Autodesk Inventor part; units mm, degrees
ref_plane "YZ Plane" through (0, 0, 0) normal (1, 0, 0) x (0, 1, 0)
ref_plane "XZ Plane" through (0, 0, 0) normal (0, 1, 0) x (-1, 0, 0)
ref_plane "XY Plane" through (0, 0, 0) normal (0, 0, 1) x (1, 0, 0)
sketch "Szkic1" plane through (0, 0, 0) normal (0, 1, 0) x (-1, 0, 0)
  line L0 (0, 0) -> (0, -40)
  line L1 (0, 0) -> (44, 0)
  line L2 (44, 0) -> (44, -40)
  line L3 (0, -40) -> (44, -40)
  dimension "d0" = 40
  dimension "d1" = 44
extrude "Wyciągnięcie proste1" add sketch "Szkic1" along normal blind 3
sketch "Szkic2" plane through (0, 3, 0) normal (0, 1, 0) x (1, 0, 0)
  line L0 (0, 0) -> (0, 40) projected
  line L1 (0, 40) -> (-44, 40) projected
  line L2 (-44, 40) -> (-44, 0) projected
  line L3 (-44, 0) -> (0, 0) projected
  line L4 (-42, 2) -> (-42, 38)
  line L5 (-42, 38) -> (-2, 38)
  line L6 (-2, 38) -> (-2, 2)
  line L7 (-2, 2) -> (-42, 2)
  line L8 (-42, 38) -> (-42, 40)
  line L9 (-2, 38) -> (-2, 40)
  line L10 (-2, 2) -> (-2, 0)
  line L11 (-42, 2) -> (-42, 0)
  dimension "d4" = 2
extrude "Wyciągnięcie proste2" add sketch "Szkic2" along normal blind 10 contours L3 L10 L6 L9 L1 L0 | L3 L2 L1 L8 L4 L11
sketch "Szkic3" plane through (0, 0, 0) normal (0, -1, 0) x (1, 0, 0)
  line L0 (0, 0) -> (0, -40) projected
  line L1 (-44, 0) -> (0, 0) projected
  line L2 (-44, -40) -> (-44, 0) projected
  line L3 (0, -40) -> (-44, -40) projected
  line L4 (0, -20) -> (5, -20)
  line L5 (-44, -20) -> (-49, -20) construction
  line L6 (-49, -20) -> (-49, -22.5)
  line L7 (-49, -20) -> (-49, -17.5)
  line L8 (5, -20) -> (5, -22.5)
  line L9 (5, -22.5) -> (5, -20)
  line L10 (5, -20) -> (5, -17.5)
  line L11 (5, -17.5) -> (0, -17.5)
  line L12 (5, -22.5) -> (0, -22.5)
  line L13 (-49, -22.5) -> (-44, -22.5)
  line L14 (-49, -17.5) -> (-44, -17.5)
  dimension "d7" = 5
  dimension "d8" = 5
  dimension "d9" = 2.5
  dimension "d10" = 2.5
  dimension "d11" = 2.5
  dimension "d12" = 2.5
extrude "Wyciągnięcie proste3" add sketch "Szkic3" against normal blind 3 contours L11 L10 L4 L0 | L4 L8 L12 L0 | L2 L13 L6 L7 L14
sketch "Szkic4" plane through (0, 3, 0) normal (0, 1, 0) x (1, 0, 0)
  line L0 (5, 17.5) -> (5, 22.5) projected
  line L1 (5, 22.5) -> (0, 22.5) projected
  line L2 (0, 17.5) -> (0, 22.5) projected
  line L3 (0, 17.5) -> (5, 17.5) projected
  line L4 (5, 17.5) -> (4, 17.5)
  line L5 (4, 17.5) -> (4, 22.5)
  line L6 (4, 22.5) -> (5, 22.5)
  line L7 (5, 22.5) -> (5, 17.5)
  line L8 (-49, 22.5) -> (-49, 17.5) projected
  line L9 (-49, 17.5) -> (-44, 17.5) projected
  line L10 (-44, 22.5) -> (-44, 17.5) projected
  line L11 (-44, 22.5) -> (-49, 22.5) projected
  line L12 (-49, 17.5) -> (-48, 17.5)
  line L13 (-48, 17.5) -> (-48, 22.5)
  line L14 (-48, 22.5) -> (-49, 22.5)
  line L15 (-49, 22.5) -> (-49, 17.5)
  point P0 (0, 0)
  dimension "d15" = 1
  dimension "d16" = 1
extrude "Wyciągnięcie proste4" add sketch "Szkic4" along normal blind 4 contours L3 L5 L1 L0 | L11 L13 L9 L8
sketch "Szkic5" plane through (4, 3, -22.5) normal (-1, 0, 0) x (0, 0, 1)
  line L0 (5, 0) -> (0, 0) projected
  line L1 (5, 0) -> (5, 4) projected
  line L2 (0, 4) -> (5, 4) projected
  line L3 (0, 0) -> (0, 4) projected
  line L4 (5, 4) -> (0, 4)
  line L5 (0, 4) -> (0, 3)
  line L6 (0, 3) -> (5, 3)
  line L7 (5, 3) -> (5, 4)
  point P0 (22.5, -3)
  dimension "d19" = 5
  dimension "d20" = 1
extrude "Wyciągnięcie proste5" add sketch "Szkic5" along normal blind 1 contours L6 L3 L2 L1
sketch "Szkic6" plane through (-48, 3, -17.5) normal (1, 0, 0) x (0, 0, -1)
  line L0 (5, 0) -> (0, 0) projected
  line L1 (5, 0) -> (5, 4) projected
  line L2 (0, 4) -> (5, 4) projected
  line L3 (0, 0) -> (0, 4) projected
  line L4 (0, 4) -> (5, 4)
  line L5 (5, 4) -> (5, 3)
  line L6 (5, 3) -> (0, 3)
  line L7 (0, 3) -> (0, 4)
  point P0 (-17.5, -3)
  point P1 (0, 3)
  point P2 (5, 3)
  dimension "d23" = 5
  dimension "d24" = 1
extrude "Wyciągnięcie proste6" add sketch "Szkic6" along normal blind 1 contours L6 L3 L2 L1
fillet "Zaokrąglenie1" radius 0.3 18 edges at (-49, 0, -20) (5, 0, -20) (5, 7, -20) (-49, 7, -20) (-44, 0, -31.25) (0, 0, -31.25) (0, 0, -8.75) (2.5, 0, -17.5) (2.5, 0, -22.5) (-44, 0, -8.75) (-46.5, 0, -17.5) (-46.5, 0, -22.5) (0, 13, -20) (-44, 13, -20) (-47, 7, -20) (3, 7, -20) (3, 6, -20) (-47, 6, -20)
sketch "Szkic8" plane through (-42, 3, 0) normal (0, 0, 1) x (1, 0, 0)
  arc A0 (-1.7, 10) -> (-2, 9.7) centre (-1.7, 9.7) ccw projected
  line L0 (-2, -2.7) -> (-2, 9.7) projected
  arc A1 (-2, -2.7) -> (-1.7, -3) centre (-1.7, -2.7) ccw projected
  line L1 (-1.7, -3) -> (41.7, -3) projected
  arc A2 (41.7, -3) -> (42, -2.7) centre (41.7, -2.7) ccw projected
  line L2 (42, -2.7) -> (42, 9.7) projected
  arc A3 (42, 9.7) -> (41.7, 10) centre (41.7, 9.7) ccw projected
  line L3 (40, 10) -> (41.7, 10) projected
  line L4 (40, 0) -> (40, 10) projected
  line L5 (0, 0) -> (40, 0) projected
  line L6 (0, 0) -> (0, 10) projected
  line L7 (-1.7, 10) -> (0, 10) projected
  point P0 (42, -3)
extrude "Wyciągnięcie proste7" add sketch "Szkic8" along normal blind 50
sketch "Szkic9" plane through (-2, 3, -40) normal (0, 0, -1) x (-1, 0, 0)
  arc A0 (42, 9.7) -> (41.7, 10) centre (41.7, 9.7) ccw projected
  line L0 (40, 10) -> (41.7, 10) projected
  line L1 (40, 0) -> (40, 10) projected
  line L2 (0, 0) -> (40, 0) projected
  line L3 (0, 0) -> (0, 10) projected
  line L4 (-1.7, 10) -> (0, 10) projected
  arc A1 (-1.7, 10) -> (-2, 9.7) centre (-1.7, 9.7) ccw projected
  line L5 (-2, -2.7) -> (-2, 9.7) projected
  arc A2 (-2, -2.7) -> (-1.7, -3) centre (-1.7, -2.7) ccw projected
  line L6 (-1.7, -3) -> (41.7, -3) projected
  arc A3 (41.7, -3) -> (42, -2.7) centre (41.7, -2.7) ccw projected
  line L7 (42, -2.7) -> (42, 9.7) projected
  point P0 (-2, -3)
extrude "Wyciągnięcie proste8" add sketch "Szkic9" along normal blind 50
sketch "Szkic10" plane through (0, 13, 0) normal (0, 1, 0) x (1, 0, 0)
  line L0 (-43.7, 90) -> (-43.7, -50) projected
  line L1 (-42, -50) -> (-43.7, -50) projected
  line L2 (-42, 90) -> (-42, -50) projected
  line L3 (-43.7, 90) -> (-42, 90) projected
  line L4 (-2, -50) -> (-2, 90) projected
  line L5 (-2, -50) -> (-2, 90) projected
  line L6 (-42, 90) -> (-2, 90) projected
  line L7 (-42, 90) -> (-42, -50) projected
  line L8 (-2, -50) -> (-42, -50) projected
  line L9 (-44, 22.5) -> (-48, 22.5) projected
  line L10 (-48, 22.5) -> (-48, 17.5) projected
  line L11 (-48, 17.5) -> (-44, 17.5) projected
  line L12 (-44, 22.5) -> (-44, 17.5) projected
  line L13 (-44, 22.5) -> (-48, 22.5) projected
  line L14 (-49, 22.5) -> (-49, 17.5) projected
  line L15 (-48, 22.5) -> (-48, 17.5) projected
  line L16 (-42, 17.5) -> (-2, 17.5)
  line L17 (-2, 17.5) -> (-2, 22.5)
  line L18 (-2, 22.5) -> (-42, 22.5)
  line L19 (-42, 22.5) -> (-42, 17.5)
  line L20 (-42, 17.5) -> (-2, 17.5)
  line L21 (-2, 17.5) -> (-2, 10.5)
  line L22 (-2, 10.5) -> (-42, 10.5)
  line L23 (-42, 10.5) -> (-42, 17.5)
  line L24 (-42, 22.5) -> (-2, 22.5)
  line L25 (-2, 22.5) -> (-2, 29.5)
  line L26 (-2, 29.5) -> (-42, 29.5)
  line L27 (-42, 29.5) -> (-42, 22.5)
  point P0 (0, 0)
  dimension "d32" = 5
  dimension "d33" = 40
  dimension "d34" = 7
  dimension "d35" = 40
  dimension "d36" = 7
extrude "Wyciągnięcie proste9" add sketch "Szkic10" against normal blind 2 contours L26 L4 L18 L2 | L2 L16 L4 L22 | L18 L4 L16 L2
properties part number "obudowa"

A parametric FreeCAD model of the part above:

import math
import FreeCAD as App
import Part
import Sketcher


def edges_at(feature, points):
    """Names of the edges that pass closest to the given points."""
    edges = feature.Shape.Edges
    near = lambda p: min(range(len(edges)), key=lambda i: edges[i].distToShape(Part.Vertex(*p))[0])
    return sorted({f"Edge{near(p) + 1}" for p in points})


def add_polygon(sketch, points):
    """Adds a closed chain of lines whose ends are joined by coincident constraints."""
    first, n = sketch.GeometryCount, len(points)
    for a, b in zip(points, points[1:] + points[:1]):
        sketch.addGeometry(Part.LineSegment(App.Vector(*a, 0), App.Vector(*b, 0)), False)
    for i in range(n):
        sketch.addConstraint(Sketcher.Constraint("Coincident", first + i, 2, first + (i + 1) % n, 1))

doc = App.newDocument("Part")
body = doc.addObject("PartDesign::Body", "Body")

sketch1 = body.newObject("Sketcher::SketchObject", "Sketch")
sketch1.AttachmentSupport = (doc.getObject("XZ_Plane"), [""])
sketch1.MapMode = "FlatFace"
add_polygon(sketch1, [(-44, 0), (0, 0), (0, -40), (-44, -40)])
sketch1.addConstraint([
    Sketcher.Constraint("Horizontal", 0),
    Sketcher.Constraint("Vertical", 1),
    Sketcher.Constraint("Horizontal", 2),
    Sketcher.Constraint("Vertical", 3),
    Sketcher.Constraint("Coincident", 0, 2, -1, 1),
    Sketcher.Constraint("DistanceX", 0, 1, 0, 2, 44.0),
    Sketcher.Constraint("DistanceY", 1, 2, 1, 1, 40.0),
])
pad1 = body.newObject("PartDesign::Pad", "Pad")
pad1.Profile = sketch1
pad1.Length = 3
pad1.Reversed = True

sketch2 = body.newObject("Sketcher::SketchObject", "Sketch001")
sketch2.AttachmentSupport = (doc.getObject("XZ_Plane"), [""])
sketch2.MapMode = "FlatFace"
sketch2.AttachmentOffset = App.Placement(App.Vector(0, 0, -3), App.Rotation())
add_polygon(sketch2, [(-2, 0), (0, 0), (0, -40), (-2, -40)])
add_polygon(sketch2, [(-44, 0), (-42, 0), (-42, -40), (-44, -40)])
sketch2.addConstraint([
    Sketcher.Constraint("Horizontal", 0),
    Sketcher.Constraint("Vertical", 1),
    Sketcher.Constraint("Horizontal", 2),
    Sketcher.Constraint("Vertical", 3),
    Sketcher.Constraint("Horizontal", 4),
    Sketcher.Constraint("Vertical", 5),
    Sketcher.Constraint("Horizontal", 6),
    Sketcher.Constraint("Vertical", 7),
    Sketcher.Constraint("Coincident", 0, 2, -1, 1),
    Sketcher.Constraint("PointOnObject", 4, 2, -1),
    Sketcher.Constraint("Horizontal", 2, 2, 5, 2),
    Sketcher.Constraint("Equal", 2, 4),
    Sketcher.Constraint("DistanceX", 0, 1, 0, 2, 2.0),
    Sketcher.Constraint("DistanceY", 1, 2, 1, 1, 40.0),
    Sketcher.Constraint("DistanceX", 4, 2, -1, 1, 42.0),
])
pad2 = body.newObject("PartDesign::Pad", "Pad001")
pad2.Profile = sketch2
pad2.Length = 10
pad2.Reversed = True

sketch3 = body.newObject("Sketcher::SketchObject", "Sketch002")
sketch3.AttachmentSupport = (doc.getObject("XZ_Plane"), [""])
sketch3.MapMode = "FlatFace"
add_polygon(sketch3, [(5, -17.5), (0, -17.5), (0, -22.5), (5, -22.5)])
add_polygon(sketch3, [(-44, -22.5), (-44, -17.5), (-49, -17.5), (-49, -22.5)])
sketch3.addConstraint([
    Sketcher.Constraint("Horizontal", 0),
    Sketcher.Constraint("Vertical", 1),
    Sketcher.Constraint("Horizontal", 2),
    Sketcher.Constraint("Vertical", 3),
    Sketcher.Constraint("Vertical", 4),
    Sketcher.Constraint("Horizontal", 5),
    Sketcher.Constraint("Vertical", 6),
    Sketcher.Constraint("Horizontal", 7),
    Sketcher.Constraint("PointOnObject", 0, 2, -2),
    Sketcher.Constraint("Horizontal", 3, 2, 4, 2),
    Sketcher.Constraint("Horizontal", 2, 2, 6, 2),
    Sketcher.Constraint("Equal", 2, 5),
    Sketcher.Constraint("Equal", 7, 1),
    Sketcher.Constraint("DistanceX", 0, 2, 0, 1, 5.0),
    Sketcher.Constraint("DistanceX", 4, 2, -1, 1, 44.0),
    Sketcher.Constraint("DistanceY", 0, 2, -1, 1, 17.5),
])
pad3 = body.newObject("PartDesign::Pad", "Pad002")
pad3.Profile = sketch3
pad3.Length = 3
pad3.Reversed = True

sketch4 = body.newObject("Sketcher::SketchObject", "Sketch003")
sketch4.AttachmentSupport = (doc.getObject("XZ_Plane"), [""])
sketch4.MapMode = "FlatFace"
sketch4.AttachmentOffset = App.Placement(App.Vector(0, 0, -3), App.Rotation())
add_polygon(sketch4, [(4, -17.5), (5, -17.5), (5, -22.5), (4, -22.5)])
add_polygon(sketch4, [(-48, -22.5), (-49, -22.5), (-49, -17.5), (-48, -17.5)])
sketch4.addConstraint([
    Sketcher.Constraint("Horizontal", 0),
    Sketcher.Constraint("Vertical", 1),
    Sketcher.Constraint("Horizontal", 2),
    Sketcher.Constraint("Vertical", 3),
    Sketcher.Constraint("Horizontal", 4),
    Sketcher.Constraint("Vertical", 5),
    Sketcher.Constraint("Horizontal", 6),
    Sketcher.Constraint("Vertical", 7),
    Sketcher.Constraint("Horizontal", 2, 2, 4, 2),
    Sketcher.Constraint("Horizontal", 3, 2, 5, 2),
    Sketcher.Constraint("Equal", 2, 4),
    Sketcher.Constraint("DistanceX", 0, 1, 0, 2, 1.0),
    Sketcher.Constraint("DistanceY", 1, 2, 1, 1, 5.0),
    Sketcher.Constraint("DistanceX", -1, 1, 0, 2, 5.0),
    Sketcher.Constraint("DistanceX", 4, 2, -1, 1, 49.0),
    Sketcher.Constraint("DistanceY", 0, 2, -1, 1, 17.5),
])
pad4 = body.newObject("PartDesign::Pad", "Pad003")
pad4.Profile = sketch4
pad4.Length = 4
pad4.Reversed = True

sketch5 = body.newObject("Sketcher::SketchObject", "Sketch004")
sketch5.AttachmentSupport = (doc.getObject("YZ_Plane"), [""])
sketch5.MapMode = "FlatFace"
sketch5.AttachmentOffset = App.Placement(App.Vector(0, 0, 4), App.Rotation())
add_polygon(sketch5, [(6, -22.5), (6, -17.5), (7, -17.5), (7, -22.5)])
sketch5.addConstraint([
    Sketcher.Constraint("Vertical", 0),
    Sketcher.Constraint("Horizontal", 1),
    Sketcher.Constraint("Vertical", 2),
    Sketcher.Constraint("Horizontal", 3),
    Sketcher.Constraint("DistanceX", 1, 1, 1, 2, 1.0),
    Sketcher.Constraint("DistanceY", 0, 1, 0, 2, 5.0),
    Sketcher.Constraint("DistanceX", -1, 1, 0, 2, 6.0),
    Sketcher.Constraint("DistanceY", 0, 2, -1, 1, 17.5),
])
pad5 = body.newObject("PartDesign::Pad", "Pad004")
pad5.Profile = sketch5
pad5.Length = 1
pad5.Reversed = True

sketch6 = body.newObject("Sketcher::SketchObject", "Sketch005")
sketch6.AttachmentSupport = (doc.getObject("YZ_Plane"), [""])
sketch6.MapMode = "FlatFace"
sketch6.AttachmentOffset = App.Placement(App.Vector(0, 0, -48), App.Rotation())
add_polygon(sketch6, [(6, -17.5), (6, -22.5), (7, -22.5), (7, -17.5)])
sketch6.addConstraint([
    Sketcher.Constraint("Vertical", 0),
    Sketcher.Constraint("Horizontal", 1),
    Sketcher.Constraint("Vertical", 2),
    Sketcher.Constraint("Horizontal", 3),
    Sketcher.Constraint("DistanceX", 1, 1, 1, 2, 1.0),
    Sketcher.Constraint("DistanceY", 0, 2, 0, 1, 5.0),
    Sketcher.Constraint("DistanceX", -1, 1, 0, 2, 6.0),
    Sketcher.Constraint("DistanceY", 0, 2, -1, 1, 22.5),
])
pad6 = body.newObject("PartDesign::Pad", "Pad005")
pad6.Profile = sketch6
pad6.Length = 1
doc.recompute()

fillet = body.newObject("PartDesign::Fillet", "Fillet")
fillet.Base = (pad6, edges_at(pad6, [
    (-49, 0, -20),
    (5, 0, -20),
    (5, 7, -20),
    (-49, 7, -20),
    (-44, 0, -31.25),
    (0, 0, -31.25),
    (0, 0, -8.75),
    (2.5, 0, -17.5),
    (2.5, 0, -22.5),
    (-44, 0, -8.75),
    (-46.5, 0, -17.5),
    (-46.5, 0, -22.5),
    (0, 13, -20),
    (-44, 13, -20),
    (-47, 7, -20),
    (3, 7, -20),
    (3, 6, -20),
    (-47, 6, -20),
]))
fillet.Radius = 0.3

sketch7 = body.newObject("Sketcher::SketchObject", "Sketch006")
sketch7.AttachmentSupport = (doc.getObject("XY_Plane"), [""])
sketch7.MapMode = "FlatFace"
sketch7.addGeometry([
    Part.LineSegment(App.Vector(-42, 13, 0), App.Vector(-43.7, 13, 0)),
    Part.ArcOfCircle(Part.Circle(App.Vector(-43.7, 12.7, 0), App.Vector(0, 0, 1), 0.3), math.radians(90), math.radians(180)),
    Part.LineSegment(App.Vector(-44, 12.7, 0), App.Vector(-44, 0.3, 0)),
    Part.ArcOfCircle(Part.Circle(App.Vector(-43.7, 0.3, 0), App.Vector(0, 0, 1), 0.3), math.radians(180), math.radians(270)),
    Part.LineSegment(App.Vector(-43.7, 0, 0), App.Vector(-0.3, 0, 0)),
    Part.ArcOfCircle(Part.Circle(App.Vector(-0.3, 0.3, 0), App.Vector(0, 0, 1), 0.3), math.radians(-90), math.radians(0)),
    Part.LineSegment(App.Vector(0, 0.3, 0), App.Vector(0, 12.7, 0)),
    Part.ArcOfCircle(Part.Circle(App.Vector(-0.3, 12.7, 0), App.Vector(0, 0, 1), 0.3), math.radians(0), math.radians(90)),
    Part.LineSegment(App.Vector(-0.3, 13, 0), App.Vector(-2, 13, 0)),
    Part.LineSegment(App.Vector(-2, 13, 0), App.Vector(-2, 3, 0)),
    Part.LineSegment(App.Vector(-2, 3, 0), App.Vector(-42, 3, 0)),
    Part.LineSegment(App.Vector(-42, 3, 0), App.Vector(-42, 13, 0)),
], False)
sketch7.addConstraint([
    Sketcher.Constraint("Tangent", 0, 2, 1, 1),
    Sketcher.Constraint("Tangent", 1, 2, 2, 1),
    Sketcher.Constraint("Tangent", 2, 2, 3, 1),
    Sketcher.Constraint("Tangent", 3, 2, 4, 1),
    Sketcher.Constraint("Tangent", 4, 2, 5, 1),
    Sketcher.Constraint("Tangent", 5, 2, 6, 1),
    Sketcher.Constraint("Tangent", 6, 2, 7, 1),
    Sketcher.Constraint("Tangent", 7, 2, 8, 1),
    Sketcher.Constraint("Coincident", 8, 2, 9, 1),
    Sketcher.Constraint("Coincident", 9, 2, 10, 1),
    Sketcher.Constraint("Coincident", 10, 2, 11, 1),
    Sketcher.Constraint("Coincident", 11, 2, 0, 1),
    Sketcher.Constraint("Horizontal", 0),
    Sketcher.Constraint("Vertical", 2),
    Sketcher.Constraint("Horizontal", 4),
    Sketcher.Constraint("Vertical", 6),
    Sketcher.Constraint("Horizontal", 8),
    Sketcher.Constraint("Vertical", 9),
    Sketcher.Constraint("Horizontal", 10),
    Sketcher.Constraint("Vertical", 11),
    Sketcher.Constraint("Equal", 1, 3),
    Sketcher.Constraint("Equal", 3, 5),
    Sketcher.Constraint("Equal", 5, 7),
    Sketcher.Constraint("PointOnObject", 3, 2, -1),
    Sketcher.Constraint("PointOnObject", 5, 2, -2),
    Sketcher.Constraint("Horizontal", 1, 3, 7, 3),
    Sketcher.Constraint("Equal", 0, 8),
    Sketcher.Constraint("Radius", 1, 0.3),
    Sketcher.Constraint("DistanceX", 10, 2, 10, 1, 40.0),
    Sketcher.Constraint("DistanceY", 9, 2, 9, 1, 10.0),
    Sketcher.Constraint("DistanceX", 0, 2, 0, 1, 1.7),
    Sketcher.Constraint("DistanceY", 2, 2, 2, 1, 12.4),
])
pad7 = body.newObject("PartDesign::Pad", "Pad006")
pad7.Profile = sketch7
pad7.Length = 50

sketch8 = body.newObject("Sketcher::SketchObject", "Sketch007")
sketch8.AttachmentSupport = (doc.getObject("XY_Plane"), [""])
sketch8.MapMode = "FlatFace"
sketch8.AttachmentOffset = App.Placement(App.Vector(0, 0, -40), App.Rotation())
sketch8.addGeometry([
    Part.LineSegment(App.Vector(-44, 0.3, 0), App.Vector(-44, 12.7, 0)),
    Part.ArcOfCircle(Part.Circle(App.Vector(-43.7, 12.7, 0), App.Vector(0, 0, 1), 0.3), math.radians(90), math.radians(180)),
    Part.LineSegment(App.Vector(-43.7, 13, 0), App.Vector(-42, 13, 0)),
    Part.LineSegment(App.Vector(-42, 13, 0), App.Vector(-42, 3, 0)),
    Part.LineSegment(App.Vector(-42, 3, 0), App.Vector(-2, 3, 0)),
    Part.LineSegment(App.Vector(-2, 3, 0), App.Vector(-2, 13, 0)),
    Part.LineSegment(App.Vector(-2, 13, 0), App.Vector(-0.3, 13, 0)),
    Part.ArcOfCircle(Part.Circle(App.Vector(-0.3, 12.7, 0), App.Vector(0, 0, 1), 0.3), math.radians(0), math.radians(90)),
    Part.LineSegment(App.Vector(0, 12.7, 0), App.Vector(0, 0.3, 0)),
    Part.ArcOfCircle(Part.Circle(App.Vector(-0.3, 0.3, 0), App.Vector(0, 0, 1), 0.3), math.radians(-90), math.radians(0)),
    Part.LineSegment(App.Vector(-0.3, 0, 0), App.Vector(-43.7, 0, 0)),
    Part.ArcOfCircle(Part.Circle(App.Vector(-43.7, 0.3, 0), App.Vector(0, 0, 1), 0.3), math.radians(180), math.radians(270)),
], False)
sketch8.addConstraint([
    Sketcher.Constraint("Tangent", 0, 2, 1, 2),
    Sketcher.Constraint("Tangent", 1, 1, 2, 1),
    Sketcher.Constraint("Coincident", 2, 2, 3, 1),
    Sketcher.Constraint("Coincident", 3, 2, 4, 1),
    Sketcher.Constraint("Coincident", 4, 2, 5, 1),
    Sketcher.Constraint("Coincident", 5, 2, 6, 1),
    Sketcher.Constraint("Tangent", 6, 2, 7, 2),
    Sketcher.Constraint("Tangent", 7, 1, 8, 1),
    Sketcher.Constraint("Tangent", 8, 2, 9, 2),
    Sketcher.Constraint("Tangent", 9, 1, 10, 1),
    Sketcher.Constraint("Tangent", 10, 2, 11, 2),
    Sketcher.Constraint("Tangent", 11, 1, 0, 1),
    Sketcher.Constraint("Vertical", 0),
    Sketcher.Constraint("Horizontal", 2),
    Sketcher.Constraint("Vertical", 3),
    Sketcher.Constraint("Horizontal", 4),
    Sketcher.Constraint("Vertical", 5),
    Sketcher.Constraint("Horizontal", 6),
    Sketcher.Constraint("Vertical", 8),
    Sketcher.Constraint("Horizontal", 10),
    Sketcher.Constraint("Equal", 1, 7),
    Sketcher.Constraint("Equal", 7, 9),
    Sketcher.Constraint("Equal", 9, 11),
    Sketcher.Constraint("PointOnObject", 7, 1, -2),
    Sketcher.Constraint("PointOnObject", 9, 1, -1),
    Sketcher.Constraint("Horizontal", 1, 3, 7, 3),
    Sketcher.Constraint("Equal", 2, 6),
    Sketcher.Constraint("Radius", 1, 0.3),
    Sketcher.Constraint("DistanceX", 4, 1, 4, 2, 40.0),
    Sketcher.Constraint("DistanceY", 3, 2, 3, 1, 10.0),
    Sketcher.Constraint("DistanceX", 2, 1, 2, 2, 1.7),
    Sketcher.Constraint("DistanceY", 0, 1, 0, 2, 12.4),
])
pad8 = body.newObject("PartDesign::Pad", "Pad007")
pad8.Profile = sketch8
pad8.Length = 50
pad8.Reversed = True

sketch9 = body.newObject("Sketcher::SketchObject", "Sketch008")
sketch9.AttachmentSupport = (doc.getObject("XZ_Plane"), [""])
sketch9.MapMode = "FlatFace"
sketch9.AttachmentOffset = App.Placement(App.Vector(0, 0, -13), App.Rotation())
add_polygon(sketch9, [(-2, -29.5), (-42, -29.5), (-42, -10.5), (-2, -10.5)])
sketch9.addConstraint([
    Sketcher.Constraint("Horizontal", 0),
    Sketcher.Constraint("Vertical", 1),
    Sketcher.Constraint("Horizontal", 2),
    Sketcher.Constraint("Vertical", 3),
    Sketcher.Constraint("DistanceX", 0, 2, 0, 1, 40.0),
    Sketcher.Constraint("DistanceY", 1, 1, 1, 2, 19.0),
    Sketcher.Constraint("DistanceX", 0, 2, -1, 1, 42.0),
    Sketcher.Constraint("DistanceY", 0, 2, -1, 1, 29.5),
])
pad9 = body.newObject("PartDesign::Pad", "Pad008")
pad9.Profile = sketch9
pad9.Length = 2

doc.recompute()
